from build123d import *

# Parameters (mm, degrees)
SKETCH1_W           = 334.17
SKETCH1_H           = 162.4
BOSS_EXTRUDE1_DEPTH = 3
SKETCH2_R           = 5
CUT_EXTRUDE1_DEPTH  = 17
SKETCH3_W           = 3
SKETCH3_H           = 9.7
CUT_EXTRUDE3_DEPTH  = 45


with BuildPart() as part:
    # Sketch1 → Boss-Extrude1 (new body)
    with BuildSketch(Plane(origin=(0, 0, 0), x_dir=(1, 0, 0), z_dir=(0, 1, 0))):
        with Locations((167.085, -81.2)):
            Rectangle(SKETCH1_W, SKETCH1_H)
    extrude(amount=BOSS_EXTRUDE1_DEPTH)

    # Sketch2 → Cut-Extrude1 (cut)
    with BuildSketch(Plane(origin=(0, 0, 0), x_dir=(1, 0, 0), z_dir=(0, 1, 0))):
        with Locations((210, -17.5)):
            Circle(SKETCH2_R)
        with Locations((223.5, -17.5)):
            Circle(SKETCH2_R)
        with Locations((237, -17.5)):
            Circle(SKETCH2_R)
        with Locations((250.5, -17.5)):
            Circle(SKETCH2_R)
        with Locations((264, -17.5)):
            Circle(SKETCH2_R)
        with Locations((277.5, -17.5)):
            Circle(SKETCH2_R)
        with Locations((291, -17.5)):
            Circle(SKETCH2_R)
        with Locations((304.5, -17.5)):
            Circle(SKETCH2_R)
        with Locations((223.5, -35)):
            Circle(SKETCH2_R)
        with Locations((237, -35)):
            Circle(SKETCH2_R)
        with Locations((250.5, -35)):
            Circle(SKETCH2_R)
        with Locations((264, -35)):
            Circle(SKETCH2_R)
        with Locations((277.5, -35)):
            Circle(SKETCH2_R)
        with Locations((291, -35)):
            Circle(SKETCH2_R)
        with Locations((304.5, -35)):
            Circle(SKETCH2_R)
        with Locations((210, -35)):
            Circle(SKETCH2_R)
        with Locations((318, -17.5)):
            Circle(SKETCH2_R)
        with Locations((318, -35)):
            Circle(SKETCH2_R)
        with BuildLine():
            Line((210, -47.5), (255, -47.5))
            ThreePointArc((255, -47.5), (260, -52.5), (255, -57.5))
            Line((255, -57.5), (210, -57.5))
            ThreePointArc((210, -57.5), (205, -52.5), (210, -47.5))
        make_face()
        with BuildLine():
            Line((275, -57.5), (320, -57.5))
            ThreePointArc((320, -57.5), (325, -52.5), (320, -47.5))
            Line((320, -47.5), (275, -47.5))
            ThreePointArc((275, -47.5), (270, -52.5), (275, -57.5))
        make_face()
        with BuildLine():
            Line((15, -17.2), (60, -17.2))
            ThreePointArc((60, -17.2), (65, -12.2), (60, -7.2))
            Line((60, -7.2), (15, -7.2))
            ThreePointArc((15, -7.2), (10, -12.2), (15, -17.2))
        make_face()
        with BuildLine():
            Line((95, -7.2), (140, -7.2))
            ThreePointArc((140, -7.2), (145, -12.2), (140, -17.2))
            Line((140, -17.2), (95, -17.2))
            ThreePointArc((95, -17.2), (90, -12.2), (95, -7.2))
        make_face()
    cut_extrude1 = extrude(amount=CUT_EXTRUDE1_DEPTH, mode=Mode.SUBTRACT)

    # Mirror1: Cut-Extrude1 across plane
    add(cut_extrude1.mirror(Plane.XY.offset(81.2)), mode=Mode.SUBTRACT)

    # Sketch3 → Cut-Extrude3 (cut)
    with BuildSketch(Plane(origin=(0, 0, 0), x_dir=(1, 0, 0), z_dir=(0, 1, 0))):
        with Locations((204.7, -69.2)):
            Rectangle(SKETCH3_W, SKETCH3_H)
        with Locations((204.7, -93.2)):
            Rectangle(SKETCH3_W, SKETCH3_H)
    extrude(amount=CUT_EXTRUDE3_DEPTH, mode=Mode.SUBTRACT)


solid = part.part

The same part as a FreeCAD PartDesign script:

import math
import FreeCAD as App
import Part
import Sketcher


def add_polygon(sketch, points):
    """Adds a closed chain of lines whose ends are joined by coincident constraints."""
    first, n = sketch.GeometryCount, len(points)
    for a, b in zip(points, points[1:] + points[:1]):
        sketch.addGeometry(Part.LineSegment(App.Vector(*a, 0), App.Vector(*b, 0)), False)
    for i in range(n):
        sketch.addConstraint(Sketcher.Constraint("Coincident", first + i, 2, first + (i + 1) % n, 1))

doc = App.newDocument("Part")
params = doc.addObject("Spreadsheet::Sheet", "Params")
for row, (alias, value) in enumerate([
    ("sketch1_height", "162.4 mm"),
    ("sketch1_width", "334.17 mm"),
    ("pad1_length", "3 mm"),
    ("sketch2_diameter", "10 mm"),
    ("sketch2_width", "45 mm"),
    ("pocket1_length", "17 mm"),
    ("sketch3_width", "3 mm"),
    ("sketch3_height", "9.7 mm"),
    ("pocket2_length", "45 mm"),
], start=1):
    params.set(f"A{row}", alias)
    params.set(f"B{row}", "=" + value)
    params.setAlias(f"B{row}", alias)

body = doc.addObject("PartDesign::Body", "Body")

# Sketch on XZ plane
sketch1 = body.newObject("Sketcher::SketchObject", "Sketch")
sketch1.AttachmentSupport = (doc.getObject("XZ_Plane"), [""])
sketch1.MapMode = "FlatFace"
add_polygon(sketch1, [(0, 0), (0, 162), (334, 162), (334, 0)])  # lines 0-3
sketch1.addConstraint(Sketcher.Constraint("Vertical", 0))
sketch1.addConstraint(Sketcher.Constraint("Horizontal", 1))
sketch1.addConstraint(Sketcher.Constraint("Vertical", 2))
sketch1.addConstraint(Sketcher.Constraint("Horizontal", 3))
sketch1.addConstraint(Sketcher.Constraint("Coincident", 3, 2, -1, 1))
sketch1.addConstraint(Sketcher.Constraint("DistanceY", 0, 1, 0, 2, 162.4))
sketch1.addConstraint(Sketcher.Constraint("DistanceX", 1, 1, 1, 2, 334.17))
sketch1.setExpression("Constraints[9]", "Params.sketch1_height")
sketch1.setExpression("Constraints[10]", "Params.sketch1_width")
pad1 = body.newObject("PartDesign::Pad", "Pad")
pad1.Profile = sketch1
pad1.setExpression("Length", "Params.pad1_length")
pad1.Reversed = True

# Sketch on XZ plane
sketch2 = body.newObject("Sketcher::SketchObject", "Sketch001")
sketch2.AttachmentSupport = (doc.getObject("XZ_Plane"), [""])
sketch2.MapMode = "FlatFace"
sketch2.addGeometry(Part.Circle(App.Vector(210, 18, 0), App.Vector(0, 0, 1), 5), False)
sketch2.addGeometry(Part.Circle(App.Vector(224, 18, 0), App.Vector(0, 0, 1), 5), False)
sketch2.addGeometry(Part.Circle(App.Vector(237, 18, 0), App.Vector(0, 0, 1), 5), False)
sketch2.addGeometry(Part.Circle(App.Vector(250, 18, 0), App.Vector(0, 0, 1), 5), False)
sketch2.addGeometry(Part.Circle(App.Vector(264, 18, 0), App.Vector(0, 0, 1), 5), False)
sketch2.addGeometry(Part.Circle(App.Vector(278, 18, 0), App.Vector(0, 0, 1), 5), False)
sketch2.addGeometry(Part.Circle(App.Vector(291, 18, 0), App.Vector(0, 0, 1), 5), False)
sketch2.addGeometry(Part.Circle(App.Vector(304, 18, 0), App.Vector(0, 0, 1), 5), False)
sketch2.addGeometry(Part.Circle(App.Vector(224, 35, 0), App.Vector(0, 0, 1), 5), False)
sketch2.addGeometry(Part.Circle(App.Vector(237, 35, 0), App.Vector(0, 0, 1), 5), False)
sketch2.addGeometry(Part.Circle(App.Vector(250, 35, 0), App.Vector(0, 0, 1), 5), False)
sketch2.addGeometry(Part.Circle(App.Vector(264, 35, 0), App.Vector(0, 0, 1), 5), False)
sketch2.addGeometry(Part.Circle(App.Vector(278, 35, 0), App.Vector(0, 0, 1), 5), False)
sketch2.addGeometry(Part.Circle(App.Vector(291, 35, 0), App.Vector(0, 0, 1), 5), False)
sketch2.addGeometry(Part.Circle(App.Vector(304, 35, 0), App.Vector(0, 0, 1), 5), False)
sketch2.addGeometry(Part.Circle(App.Vector(210, 35, 0), App.Vector(0, 0, 1), 5), False)
sketch2.addGeometry(Part.Circle(App.Vector(318, 18, 0), App.Vector(0, 0, 1), 5), False)
sketch2.addGeometry(Part.Circle(App.Vector(318, 35, 0), App.Vector(0, 0, 1), 5), False)
sketch2.addGeometry(Part.LineSegment(App.Vector(255, 48, 0), App.Vector(210, 48, 0)), False)
sketch2.addGeometry(Part.ArcOfCircle(Part.Circle(App.Vector(210, 52, 0), App.Vector(0, 0, 1), 5), math.radians(90), math.radians(270)), False)
sketch2.addGeometry(Part.LineSegment(App.Vector(210, 58, 0), App.Vector(255, 58, 0)), False)
sketch2.addGeometry(Part.ArcOfCircle(Part.Circle(App.Vector(255, 52, 0), App.Vector(0, 0, 1), 5), math.radians(-90), math.radians(90)), False)
sketch2.addGeometry(Part.LineSegment(App.Vector(275, 58, 0), App.Vector(320, 58, 0)), False)
sketch2.addGeometry(Part.ArcOfCircle(Part.Circle(App.Vector(320, 52, 0), App.Vector(0, 0, 1), 5), math.radians(-90), math.radians(90)), False)
sketch2.addGeometry(Part.LineSegment(App.Vector(320, 48, 0), App.Vector(275, 48, 0)), False)
sketch2.addGeometry(Part.ArcOfCircle(Part.Circle(App.Vector(275, 52, 0), App.Vector(0, 0, 1), 5), math.radians(90), math.radians(270)), False)
sketch2.addGeometry(Part.LineSegment(App.Vector(15, 17, 0), App.Vector(60, 17, 0)), False)
sketch2.addGeometry(Part.ArcOfCircle(Part.Circle(App.Vector(60, 12, 0), App.Vector(0, 0, 1), 5), math.radians(-90), math.radians(90)), False)
sketch2.addGeometry(Part.LineSegment(App.Vector(60, 7, 0), App.Vector(15, 7, 0)), False)
sketch2.addGeometry(Part.ArcOfCircle(Part.Circle(App.Vector(15, 12, 0), App.Vector(0, 0, 1), 5), math.radians(90), math.radians(270)), False)
sketch2.addGeometry(Part.LineSegment(App.Vector(140, 7, 0), App.Vector(95, 7, 0)), False)
sketch2.addGeometry(Part.ArcOfCircle(Part.Circle(App.Vector(95, 12, 0), App.Vector(0, 0, 1), 5), math.radians(90), math.radians(270)), False)
sketch2.addGeometry(Part.LineSegment(App.Vector(95, 17, 0), App.Vector(140, 17, 0)), False)
sketch2.addGeometry(Part.ArcOfCircle(Part.Circle(App.Vector(140, 12, 0), App.Vector(0, 0, 1), 5), math.radians(-90), math.radians(90)), False)
sketch2.addConstraint(Sketcher.Constraint("Tangent", 18, 2, 19, 2))
sketch2.addConstraint(Sketcher.Constraint("Tangent", 19, 1, 20, 1))
sketch2.addConstraint(Sketcher.Constraint("Tangent", 20, 2, 21, 2))
sketch2.addConstraint(Sketcher.Constraint("Tangent", 21, 1, 18, 1))
sketch2.addConstraint(Sketcher.Constraint("Tangent", 22, 2, 23, 2))
sketch2.addConstraint(Sketcher.Constraint("Tangent", 23, 1, 24, 1))
sketch2.addConstraint(Sketcher.Constraint("Tangent", 24, 2, 25, 2))
sketch2.addConstraint(Sketcher.Constraint("Tangent", 25, 1, 22, 1))
sketch2.addConstraint(Sketcher.Constraint("Tangent", 26, 2, 27, 2))
sketch2.addConstraint(Sketcher.Constraint("Tangent", 27, 1, 28, 1))
sketch2.addConstraint(Sketcher.Constraint("Tangent", 28, 2, 29, 2))
sketch2.addConstraint(Sketcher.Constraint("Tangent", 29, 1, 26, 1))
sketch2.addConstraint(Sketcher.Constraint("Tangent", 30, 2, 31, 2))
sketch2.addConstraint(Sketcher.Constraint("Tangent", 31, 1, 32, 1))
sketch2.addConstraint(Sketcher.Constraint("Tangent", 32, 2, 33, 2))
sketch2.addConstraint(Sketcher.Constraint("Tangent", 33, 1, 30, 1))
sketch2.addConstraint(Sketcher.Constraint("Horizontal", 18))
sketch2.addConstraint(Sketcher.Constraint("Horizontal", 20))
sketch2.addConstraint(Sketcher.Constraint("Horizontal", 22))
sketch2.addConstraint(Sketcher.Constraint("Horizontal", 24))
sketch2.addConstraint(Sketcher.Constraint("Horizontal", 26))
sketch2.addConstraint(Sketcher.Constraint("Horizontal", 28))
sketch2.addConstraint(Sketcher.Constraint("Horizontal", 30))
sketch2.addConstraint(Sketcher.Constraint("Horizontal", 32))
sketch2.addConstraint(Sketcher.Constraint("Equal", 0, 1))
sketch2.addConstraint(Sketcher.Constraint("Equal", 1, 2))
sketch2.addConstraint(Sketcher.Constraint("Equal", 2, 3))
sketch2.addConstraint(Sketcher.Constraint("Equal", 3, 4))
sketch2.addConstraint(Sketcher.Constraint("Equal", 4, 5))
sketch2.addConstraint(Sketcher.Constraint("Equal", 5, 6))
sketch2.addConstraint(Sketcher.Constraint("Equal", 6, 7))
sketch2.addConstraint(Sketcher.Constraint("Equal", 7, 8))
sketch2.addConstraint(Sketcher.Constraint("Equal", 8, 9))
sketch2.addConstraint(Sketcher.Constraint("Equal", 9, 10))
sketch2.addConstraint(Sketcher.Constraint("Equal", 10, 11))
sketch2.addConstraint(Sketcher.Constraint("Equal", 11, 12))
sketch2.addConstraint(Sketcher.Constraint("Equal", 12, 13))
sketch2.addConstraint(Sketcher.Constraint("Equal", 13, 14))
sketch2.addConstraint(Sketcher.Constraint("Equal", 14, 15))
sketch2.addConstraint(Sketcher.Constraint("Equal", 15, 16))
sketch2.addConstraint(Sketcher.Constraint("Equal", 16, 17))
sketch2.addConstraint(Sketcher.Constraint("Equal", 17, 19))
sketch2.addConstraint(Sketcher.Constraint("Equal", 21, 23))
sketch2.addConstraint(Sketcher.Constraint("Equal", 25, 27))
sketch2.addConstraint(Sketcher.Constraint("Equal", 29, 31))
sketch2.addConstraint(Sketcher.Constraint("Horizontal", 0, 3, 1, 3))
sketch2.addConstraint(Sketcher.Constraint("Horizontal", 1, 3, 2, 3))
sketch2.addConstraint(Sketcher.Constraint("Horizontal", 2, 3, 3, 3))
sketch2.addConstraint(Sketcher.Constraint("Horizontal", 3, 3, 4, 3))
sketch2.addConstraint(Sketcher.Constraint("Horizontal", 4, 3, 5, 3))
sketch2.addConstraint(Sketcher.Constraint("Horizontal", 5, 3, 6, 3))
sketch2.addConstraint(Sketcher.Constraint("Horizontal", 6, 3, 7, 3))
sketch2.addConstraint(Sketcher.Constraint("Horizontal", 8, 3, 9, 3))
sketch2.addConstraint(Sketcher.Constraint("Horizontal", 9, 3, 10, 3))
sketch2.addConstraint(Sketcher.Constraint("Horizontal", 10, 3, 11, 3))
sketch2.addConstraint(Sketcher.Constraint("Horizontal", 11, 3, 12, 3))
sketch2.addConstraint(Sketcher.Constraint("Horizontal", 12, 3, 13, 3))
sketch2.addConstraint(Sketcher.Constraint("Horizontal", 13, 3, 14, 3))
sketch2.addConstraint(Sketcher.Constraint("Horizontal", 14, 3, 15, 3))
sketch2.addConstraint(Sketcher.Constraint("Horizontal", 7, 3, 16, 3))
sketch2.addConstraint(Sketcher.Constraint("Horizontal", 15, 3, 17, 3))
sketch2.addConstraint(Sketcher.Constraint("Horizontal", 21, 3, 23, 3))
sketch2.addConstraint(Sketcher.Constraint("Horizontal", 29, 3, 31, 3))
sketch2.addConstraint(Sketcher.Constraint("Vertical", 1, 3, 8, 3))
sketch2.addConstraint(Sketcher.Constraint("Vertical", 2, 3, 9, 3))
sketch2.addConstraint(Sketcher.Constraint("Vertical", 3, 3, 10, 3))
sketch2.addConstraint(Sketcher.Constraint("Vertical", 4, 3, 11, 3))
sketch2.addConstraint(Sketcher.Constraint("Vertical", 5, 3, 12, 3))
sketch2.addConstraint(Sketcher.Constraint("Vertical", 6, 3, 13, 3))
sketch2.addConstraint(Sketcher.Constraint("Vertical", 7, 3, 14, 3))
sketch2.addConstraint(Sketcher.Constraint("Vertical", 0, 3, 15, 3))
sketch2.addConstraint(Sketcher.Constraint("Vertical", 16, 3, 17, 3))
sketch2.addConstraint(Sketcher.Constraint("Vertical", 15, 3, 19, 3))
sketch2.addConstraint(Sketcher.Constraint("Equal", 20, 22))
sketch2.addConstraint(Sketcher.Constraint("Equal", 24, 26))
sketch2.addConstraint(Sketcher.Constraint("Equal", 28, 30))
sketch2.addConstraint(Sketcher.Constraint("Diameter", 0, 10.0))
sketch2.addConstraint(Sketcher.Constraint("DistanceX", 18, 2, 18, 1, 45.0))
sketch2.addConstraint(Sketcher.Constraint("DistanceX", -1, 1, 0, 3, 210.0))
sketch2.addConstraint(Sketcher.Constraint("DistanceX", -1, 1, 2, 3, 237.0))
sketch2.addConstraint(Sketcher.Constraint("DistanceX", -1, 1, 4, 3, 264.0))
sketch2.addConstraint(Sketcher.Constraint("DistanceX", -1, 1, 6, 3, 291.0))
sketch2.addConstraint(Sketcher.Constraint("DistanceY", -1, 1, 8, 3, 35.0))
sketch2.addConstraint(Sketcher.Constraint("DistanceX", -1, 1, 16, 3, 318.0))
sketch2.addConstraint(Sketcher.Constraint("DistanceX", -1, 1, 23, 3, 320.0))
sketch2.addConstraint(Sketcher.Constraint("DistanceX", -1, 1, 27, 3, 60.0))
sketch2.addConstraint(Sketcher.Constraint("DistanceX", -1, 1, 31, 3, 95.0))
sketch2.addConstraint(Sketcher.Constraint("DistanceX", 1, 3, 3, 3, 27.0))
sketch2.addConstraint(Sketcher.Constraint("DistanceX", 3, 3, 5, 3, 27.0))
sketch2.addConstraint(Sketcher.Constraint("DistanceX", 5, 3, 7, 3, 27.0))
sketch2.addConstraint(Sketcher.Constraint("DistanceY", 0, 3, 19, 3, 35.0))
sketch2.addConstraint(Sketcher.Constraint("DistanceY", -1, 1, 0, 3, 17.5))
sketch2.addConstraint(Sketcher.Constraint("DistanceX", -1, 1, 1, 3, 223.5))
sketch2.addConstraint(Sketcher.Constraint("DistanceY", -1, 1, 27, 3, 12.2))
sketch2.setExpression("Constraints[76]", "Params.sketch2_diameter")
sketch2.setExpression("Constraints[77]", "Params.sketch2_width")
pocket1 = body.newObject("PartDesign::Pocket", "Pocket")
pocket1.Profile = sketch2
pocket1.setExpression("Length", "Params.pocket1_length")
doc.recompute()

datumplane = body.newObject("PartDesign::Plane", "DatumPlane")
datumplane.AttachmentSupport = (doc.getObject("XY_Plane"), [""])
datumplane.MapMode = "FlatFace"
datumplane.AttachmentOffset = App.Placement(App.Vector(0, 0, 81.2), App.Rotation())
mirrored = body.newObject("PartDesign::Mirrored", "Mirrored")
mirrored.Originals = [pocket1]
mirrored.MirrorPlane = (datumplane, [""])
body.Tip = mirrored

# Sketch on XZ plane
sketch3 = body.newObject("Sketcher::SketchObject", "Sketch002")
sketch3.AttachmentSupport = (doc.getObject("XZ_Plane"), [""])
sketch3.MapMode = "FlatFace"
add_polygon(sketch3, [(203.2, 64.3), (203.2, 74), (206.2, 74), (206.2, 64.3)])  # lines 0-3
add_polygon(sketch3, [(203.2, 88.3), (203.2, 98), (206.2, 98), (206.2, 88.3)])  # lines 4-7
sketch3.addConstraint(Sketcher.Constraint("Vertical", 0))
sketch3.addConstraint(Sketcher.Constraint("Horizontal", 1))
sketch3.addConstraint(Sketcher.Constraint("Vertical", 2))
sketch3.addConstraint(Sketcher.Constraint("Horizontal", 3))
sketch3.addConstraint(Sketcher.Constraint("Vertical", 4))
sketch3.addConstraint(Sketcher.Constraint("Horizontal", 5))
sketch3.addConstraint(Sketcher.Constraint("Vertical", 6))
sketch3.addConstraint(Sketcher.Constraint("Horizontal", 7))
sketch3.addConstraint(Sketcher.Constraint("Vertical", 3, 2, 4, 2))
sketch3.addConstraint(Sketcher.Constraint("Vertical", 2, 2, 5, 2))
sketch3.addConstraint(Sketcher.Constraint("Equal", 2, 4))
sketch3.addConstraint(Sketcher.Constraint("DistanceX", 1, 1, 1, 2, 3.0))
sketch3.addConstraint(Sketcher.Constraint("DistanceY", 0, 1, 0, 2, 9.7))
sketch3.addConstraint(Sketcher.Constraint("DistanceY", 0, 2, 4, 2, 24.0))
sketch3.addConstraint(Sketcher.Constraint("DistanceX", -1, 1, 0, 2, 203.2))
sketch3.addConstraint(Sketcher.Constraint("DistanceY", -1, 1, 0, 2, 74.05))
sketch3.setExpression("Constraints[19]", "Params.sketch3_width")
sketch3.setExpression("Constraints[20]", "Params.sketch3_height")
pocket2 = body.newObject("PartDesign::Pocket", "Pocket001")
pocket2.Profile = sketch3
pocket2.setExpression("Length", "Params.pocket2_length")

doc.recompute()
